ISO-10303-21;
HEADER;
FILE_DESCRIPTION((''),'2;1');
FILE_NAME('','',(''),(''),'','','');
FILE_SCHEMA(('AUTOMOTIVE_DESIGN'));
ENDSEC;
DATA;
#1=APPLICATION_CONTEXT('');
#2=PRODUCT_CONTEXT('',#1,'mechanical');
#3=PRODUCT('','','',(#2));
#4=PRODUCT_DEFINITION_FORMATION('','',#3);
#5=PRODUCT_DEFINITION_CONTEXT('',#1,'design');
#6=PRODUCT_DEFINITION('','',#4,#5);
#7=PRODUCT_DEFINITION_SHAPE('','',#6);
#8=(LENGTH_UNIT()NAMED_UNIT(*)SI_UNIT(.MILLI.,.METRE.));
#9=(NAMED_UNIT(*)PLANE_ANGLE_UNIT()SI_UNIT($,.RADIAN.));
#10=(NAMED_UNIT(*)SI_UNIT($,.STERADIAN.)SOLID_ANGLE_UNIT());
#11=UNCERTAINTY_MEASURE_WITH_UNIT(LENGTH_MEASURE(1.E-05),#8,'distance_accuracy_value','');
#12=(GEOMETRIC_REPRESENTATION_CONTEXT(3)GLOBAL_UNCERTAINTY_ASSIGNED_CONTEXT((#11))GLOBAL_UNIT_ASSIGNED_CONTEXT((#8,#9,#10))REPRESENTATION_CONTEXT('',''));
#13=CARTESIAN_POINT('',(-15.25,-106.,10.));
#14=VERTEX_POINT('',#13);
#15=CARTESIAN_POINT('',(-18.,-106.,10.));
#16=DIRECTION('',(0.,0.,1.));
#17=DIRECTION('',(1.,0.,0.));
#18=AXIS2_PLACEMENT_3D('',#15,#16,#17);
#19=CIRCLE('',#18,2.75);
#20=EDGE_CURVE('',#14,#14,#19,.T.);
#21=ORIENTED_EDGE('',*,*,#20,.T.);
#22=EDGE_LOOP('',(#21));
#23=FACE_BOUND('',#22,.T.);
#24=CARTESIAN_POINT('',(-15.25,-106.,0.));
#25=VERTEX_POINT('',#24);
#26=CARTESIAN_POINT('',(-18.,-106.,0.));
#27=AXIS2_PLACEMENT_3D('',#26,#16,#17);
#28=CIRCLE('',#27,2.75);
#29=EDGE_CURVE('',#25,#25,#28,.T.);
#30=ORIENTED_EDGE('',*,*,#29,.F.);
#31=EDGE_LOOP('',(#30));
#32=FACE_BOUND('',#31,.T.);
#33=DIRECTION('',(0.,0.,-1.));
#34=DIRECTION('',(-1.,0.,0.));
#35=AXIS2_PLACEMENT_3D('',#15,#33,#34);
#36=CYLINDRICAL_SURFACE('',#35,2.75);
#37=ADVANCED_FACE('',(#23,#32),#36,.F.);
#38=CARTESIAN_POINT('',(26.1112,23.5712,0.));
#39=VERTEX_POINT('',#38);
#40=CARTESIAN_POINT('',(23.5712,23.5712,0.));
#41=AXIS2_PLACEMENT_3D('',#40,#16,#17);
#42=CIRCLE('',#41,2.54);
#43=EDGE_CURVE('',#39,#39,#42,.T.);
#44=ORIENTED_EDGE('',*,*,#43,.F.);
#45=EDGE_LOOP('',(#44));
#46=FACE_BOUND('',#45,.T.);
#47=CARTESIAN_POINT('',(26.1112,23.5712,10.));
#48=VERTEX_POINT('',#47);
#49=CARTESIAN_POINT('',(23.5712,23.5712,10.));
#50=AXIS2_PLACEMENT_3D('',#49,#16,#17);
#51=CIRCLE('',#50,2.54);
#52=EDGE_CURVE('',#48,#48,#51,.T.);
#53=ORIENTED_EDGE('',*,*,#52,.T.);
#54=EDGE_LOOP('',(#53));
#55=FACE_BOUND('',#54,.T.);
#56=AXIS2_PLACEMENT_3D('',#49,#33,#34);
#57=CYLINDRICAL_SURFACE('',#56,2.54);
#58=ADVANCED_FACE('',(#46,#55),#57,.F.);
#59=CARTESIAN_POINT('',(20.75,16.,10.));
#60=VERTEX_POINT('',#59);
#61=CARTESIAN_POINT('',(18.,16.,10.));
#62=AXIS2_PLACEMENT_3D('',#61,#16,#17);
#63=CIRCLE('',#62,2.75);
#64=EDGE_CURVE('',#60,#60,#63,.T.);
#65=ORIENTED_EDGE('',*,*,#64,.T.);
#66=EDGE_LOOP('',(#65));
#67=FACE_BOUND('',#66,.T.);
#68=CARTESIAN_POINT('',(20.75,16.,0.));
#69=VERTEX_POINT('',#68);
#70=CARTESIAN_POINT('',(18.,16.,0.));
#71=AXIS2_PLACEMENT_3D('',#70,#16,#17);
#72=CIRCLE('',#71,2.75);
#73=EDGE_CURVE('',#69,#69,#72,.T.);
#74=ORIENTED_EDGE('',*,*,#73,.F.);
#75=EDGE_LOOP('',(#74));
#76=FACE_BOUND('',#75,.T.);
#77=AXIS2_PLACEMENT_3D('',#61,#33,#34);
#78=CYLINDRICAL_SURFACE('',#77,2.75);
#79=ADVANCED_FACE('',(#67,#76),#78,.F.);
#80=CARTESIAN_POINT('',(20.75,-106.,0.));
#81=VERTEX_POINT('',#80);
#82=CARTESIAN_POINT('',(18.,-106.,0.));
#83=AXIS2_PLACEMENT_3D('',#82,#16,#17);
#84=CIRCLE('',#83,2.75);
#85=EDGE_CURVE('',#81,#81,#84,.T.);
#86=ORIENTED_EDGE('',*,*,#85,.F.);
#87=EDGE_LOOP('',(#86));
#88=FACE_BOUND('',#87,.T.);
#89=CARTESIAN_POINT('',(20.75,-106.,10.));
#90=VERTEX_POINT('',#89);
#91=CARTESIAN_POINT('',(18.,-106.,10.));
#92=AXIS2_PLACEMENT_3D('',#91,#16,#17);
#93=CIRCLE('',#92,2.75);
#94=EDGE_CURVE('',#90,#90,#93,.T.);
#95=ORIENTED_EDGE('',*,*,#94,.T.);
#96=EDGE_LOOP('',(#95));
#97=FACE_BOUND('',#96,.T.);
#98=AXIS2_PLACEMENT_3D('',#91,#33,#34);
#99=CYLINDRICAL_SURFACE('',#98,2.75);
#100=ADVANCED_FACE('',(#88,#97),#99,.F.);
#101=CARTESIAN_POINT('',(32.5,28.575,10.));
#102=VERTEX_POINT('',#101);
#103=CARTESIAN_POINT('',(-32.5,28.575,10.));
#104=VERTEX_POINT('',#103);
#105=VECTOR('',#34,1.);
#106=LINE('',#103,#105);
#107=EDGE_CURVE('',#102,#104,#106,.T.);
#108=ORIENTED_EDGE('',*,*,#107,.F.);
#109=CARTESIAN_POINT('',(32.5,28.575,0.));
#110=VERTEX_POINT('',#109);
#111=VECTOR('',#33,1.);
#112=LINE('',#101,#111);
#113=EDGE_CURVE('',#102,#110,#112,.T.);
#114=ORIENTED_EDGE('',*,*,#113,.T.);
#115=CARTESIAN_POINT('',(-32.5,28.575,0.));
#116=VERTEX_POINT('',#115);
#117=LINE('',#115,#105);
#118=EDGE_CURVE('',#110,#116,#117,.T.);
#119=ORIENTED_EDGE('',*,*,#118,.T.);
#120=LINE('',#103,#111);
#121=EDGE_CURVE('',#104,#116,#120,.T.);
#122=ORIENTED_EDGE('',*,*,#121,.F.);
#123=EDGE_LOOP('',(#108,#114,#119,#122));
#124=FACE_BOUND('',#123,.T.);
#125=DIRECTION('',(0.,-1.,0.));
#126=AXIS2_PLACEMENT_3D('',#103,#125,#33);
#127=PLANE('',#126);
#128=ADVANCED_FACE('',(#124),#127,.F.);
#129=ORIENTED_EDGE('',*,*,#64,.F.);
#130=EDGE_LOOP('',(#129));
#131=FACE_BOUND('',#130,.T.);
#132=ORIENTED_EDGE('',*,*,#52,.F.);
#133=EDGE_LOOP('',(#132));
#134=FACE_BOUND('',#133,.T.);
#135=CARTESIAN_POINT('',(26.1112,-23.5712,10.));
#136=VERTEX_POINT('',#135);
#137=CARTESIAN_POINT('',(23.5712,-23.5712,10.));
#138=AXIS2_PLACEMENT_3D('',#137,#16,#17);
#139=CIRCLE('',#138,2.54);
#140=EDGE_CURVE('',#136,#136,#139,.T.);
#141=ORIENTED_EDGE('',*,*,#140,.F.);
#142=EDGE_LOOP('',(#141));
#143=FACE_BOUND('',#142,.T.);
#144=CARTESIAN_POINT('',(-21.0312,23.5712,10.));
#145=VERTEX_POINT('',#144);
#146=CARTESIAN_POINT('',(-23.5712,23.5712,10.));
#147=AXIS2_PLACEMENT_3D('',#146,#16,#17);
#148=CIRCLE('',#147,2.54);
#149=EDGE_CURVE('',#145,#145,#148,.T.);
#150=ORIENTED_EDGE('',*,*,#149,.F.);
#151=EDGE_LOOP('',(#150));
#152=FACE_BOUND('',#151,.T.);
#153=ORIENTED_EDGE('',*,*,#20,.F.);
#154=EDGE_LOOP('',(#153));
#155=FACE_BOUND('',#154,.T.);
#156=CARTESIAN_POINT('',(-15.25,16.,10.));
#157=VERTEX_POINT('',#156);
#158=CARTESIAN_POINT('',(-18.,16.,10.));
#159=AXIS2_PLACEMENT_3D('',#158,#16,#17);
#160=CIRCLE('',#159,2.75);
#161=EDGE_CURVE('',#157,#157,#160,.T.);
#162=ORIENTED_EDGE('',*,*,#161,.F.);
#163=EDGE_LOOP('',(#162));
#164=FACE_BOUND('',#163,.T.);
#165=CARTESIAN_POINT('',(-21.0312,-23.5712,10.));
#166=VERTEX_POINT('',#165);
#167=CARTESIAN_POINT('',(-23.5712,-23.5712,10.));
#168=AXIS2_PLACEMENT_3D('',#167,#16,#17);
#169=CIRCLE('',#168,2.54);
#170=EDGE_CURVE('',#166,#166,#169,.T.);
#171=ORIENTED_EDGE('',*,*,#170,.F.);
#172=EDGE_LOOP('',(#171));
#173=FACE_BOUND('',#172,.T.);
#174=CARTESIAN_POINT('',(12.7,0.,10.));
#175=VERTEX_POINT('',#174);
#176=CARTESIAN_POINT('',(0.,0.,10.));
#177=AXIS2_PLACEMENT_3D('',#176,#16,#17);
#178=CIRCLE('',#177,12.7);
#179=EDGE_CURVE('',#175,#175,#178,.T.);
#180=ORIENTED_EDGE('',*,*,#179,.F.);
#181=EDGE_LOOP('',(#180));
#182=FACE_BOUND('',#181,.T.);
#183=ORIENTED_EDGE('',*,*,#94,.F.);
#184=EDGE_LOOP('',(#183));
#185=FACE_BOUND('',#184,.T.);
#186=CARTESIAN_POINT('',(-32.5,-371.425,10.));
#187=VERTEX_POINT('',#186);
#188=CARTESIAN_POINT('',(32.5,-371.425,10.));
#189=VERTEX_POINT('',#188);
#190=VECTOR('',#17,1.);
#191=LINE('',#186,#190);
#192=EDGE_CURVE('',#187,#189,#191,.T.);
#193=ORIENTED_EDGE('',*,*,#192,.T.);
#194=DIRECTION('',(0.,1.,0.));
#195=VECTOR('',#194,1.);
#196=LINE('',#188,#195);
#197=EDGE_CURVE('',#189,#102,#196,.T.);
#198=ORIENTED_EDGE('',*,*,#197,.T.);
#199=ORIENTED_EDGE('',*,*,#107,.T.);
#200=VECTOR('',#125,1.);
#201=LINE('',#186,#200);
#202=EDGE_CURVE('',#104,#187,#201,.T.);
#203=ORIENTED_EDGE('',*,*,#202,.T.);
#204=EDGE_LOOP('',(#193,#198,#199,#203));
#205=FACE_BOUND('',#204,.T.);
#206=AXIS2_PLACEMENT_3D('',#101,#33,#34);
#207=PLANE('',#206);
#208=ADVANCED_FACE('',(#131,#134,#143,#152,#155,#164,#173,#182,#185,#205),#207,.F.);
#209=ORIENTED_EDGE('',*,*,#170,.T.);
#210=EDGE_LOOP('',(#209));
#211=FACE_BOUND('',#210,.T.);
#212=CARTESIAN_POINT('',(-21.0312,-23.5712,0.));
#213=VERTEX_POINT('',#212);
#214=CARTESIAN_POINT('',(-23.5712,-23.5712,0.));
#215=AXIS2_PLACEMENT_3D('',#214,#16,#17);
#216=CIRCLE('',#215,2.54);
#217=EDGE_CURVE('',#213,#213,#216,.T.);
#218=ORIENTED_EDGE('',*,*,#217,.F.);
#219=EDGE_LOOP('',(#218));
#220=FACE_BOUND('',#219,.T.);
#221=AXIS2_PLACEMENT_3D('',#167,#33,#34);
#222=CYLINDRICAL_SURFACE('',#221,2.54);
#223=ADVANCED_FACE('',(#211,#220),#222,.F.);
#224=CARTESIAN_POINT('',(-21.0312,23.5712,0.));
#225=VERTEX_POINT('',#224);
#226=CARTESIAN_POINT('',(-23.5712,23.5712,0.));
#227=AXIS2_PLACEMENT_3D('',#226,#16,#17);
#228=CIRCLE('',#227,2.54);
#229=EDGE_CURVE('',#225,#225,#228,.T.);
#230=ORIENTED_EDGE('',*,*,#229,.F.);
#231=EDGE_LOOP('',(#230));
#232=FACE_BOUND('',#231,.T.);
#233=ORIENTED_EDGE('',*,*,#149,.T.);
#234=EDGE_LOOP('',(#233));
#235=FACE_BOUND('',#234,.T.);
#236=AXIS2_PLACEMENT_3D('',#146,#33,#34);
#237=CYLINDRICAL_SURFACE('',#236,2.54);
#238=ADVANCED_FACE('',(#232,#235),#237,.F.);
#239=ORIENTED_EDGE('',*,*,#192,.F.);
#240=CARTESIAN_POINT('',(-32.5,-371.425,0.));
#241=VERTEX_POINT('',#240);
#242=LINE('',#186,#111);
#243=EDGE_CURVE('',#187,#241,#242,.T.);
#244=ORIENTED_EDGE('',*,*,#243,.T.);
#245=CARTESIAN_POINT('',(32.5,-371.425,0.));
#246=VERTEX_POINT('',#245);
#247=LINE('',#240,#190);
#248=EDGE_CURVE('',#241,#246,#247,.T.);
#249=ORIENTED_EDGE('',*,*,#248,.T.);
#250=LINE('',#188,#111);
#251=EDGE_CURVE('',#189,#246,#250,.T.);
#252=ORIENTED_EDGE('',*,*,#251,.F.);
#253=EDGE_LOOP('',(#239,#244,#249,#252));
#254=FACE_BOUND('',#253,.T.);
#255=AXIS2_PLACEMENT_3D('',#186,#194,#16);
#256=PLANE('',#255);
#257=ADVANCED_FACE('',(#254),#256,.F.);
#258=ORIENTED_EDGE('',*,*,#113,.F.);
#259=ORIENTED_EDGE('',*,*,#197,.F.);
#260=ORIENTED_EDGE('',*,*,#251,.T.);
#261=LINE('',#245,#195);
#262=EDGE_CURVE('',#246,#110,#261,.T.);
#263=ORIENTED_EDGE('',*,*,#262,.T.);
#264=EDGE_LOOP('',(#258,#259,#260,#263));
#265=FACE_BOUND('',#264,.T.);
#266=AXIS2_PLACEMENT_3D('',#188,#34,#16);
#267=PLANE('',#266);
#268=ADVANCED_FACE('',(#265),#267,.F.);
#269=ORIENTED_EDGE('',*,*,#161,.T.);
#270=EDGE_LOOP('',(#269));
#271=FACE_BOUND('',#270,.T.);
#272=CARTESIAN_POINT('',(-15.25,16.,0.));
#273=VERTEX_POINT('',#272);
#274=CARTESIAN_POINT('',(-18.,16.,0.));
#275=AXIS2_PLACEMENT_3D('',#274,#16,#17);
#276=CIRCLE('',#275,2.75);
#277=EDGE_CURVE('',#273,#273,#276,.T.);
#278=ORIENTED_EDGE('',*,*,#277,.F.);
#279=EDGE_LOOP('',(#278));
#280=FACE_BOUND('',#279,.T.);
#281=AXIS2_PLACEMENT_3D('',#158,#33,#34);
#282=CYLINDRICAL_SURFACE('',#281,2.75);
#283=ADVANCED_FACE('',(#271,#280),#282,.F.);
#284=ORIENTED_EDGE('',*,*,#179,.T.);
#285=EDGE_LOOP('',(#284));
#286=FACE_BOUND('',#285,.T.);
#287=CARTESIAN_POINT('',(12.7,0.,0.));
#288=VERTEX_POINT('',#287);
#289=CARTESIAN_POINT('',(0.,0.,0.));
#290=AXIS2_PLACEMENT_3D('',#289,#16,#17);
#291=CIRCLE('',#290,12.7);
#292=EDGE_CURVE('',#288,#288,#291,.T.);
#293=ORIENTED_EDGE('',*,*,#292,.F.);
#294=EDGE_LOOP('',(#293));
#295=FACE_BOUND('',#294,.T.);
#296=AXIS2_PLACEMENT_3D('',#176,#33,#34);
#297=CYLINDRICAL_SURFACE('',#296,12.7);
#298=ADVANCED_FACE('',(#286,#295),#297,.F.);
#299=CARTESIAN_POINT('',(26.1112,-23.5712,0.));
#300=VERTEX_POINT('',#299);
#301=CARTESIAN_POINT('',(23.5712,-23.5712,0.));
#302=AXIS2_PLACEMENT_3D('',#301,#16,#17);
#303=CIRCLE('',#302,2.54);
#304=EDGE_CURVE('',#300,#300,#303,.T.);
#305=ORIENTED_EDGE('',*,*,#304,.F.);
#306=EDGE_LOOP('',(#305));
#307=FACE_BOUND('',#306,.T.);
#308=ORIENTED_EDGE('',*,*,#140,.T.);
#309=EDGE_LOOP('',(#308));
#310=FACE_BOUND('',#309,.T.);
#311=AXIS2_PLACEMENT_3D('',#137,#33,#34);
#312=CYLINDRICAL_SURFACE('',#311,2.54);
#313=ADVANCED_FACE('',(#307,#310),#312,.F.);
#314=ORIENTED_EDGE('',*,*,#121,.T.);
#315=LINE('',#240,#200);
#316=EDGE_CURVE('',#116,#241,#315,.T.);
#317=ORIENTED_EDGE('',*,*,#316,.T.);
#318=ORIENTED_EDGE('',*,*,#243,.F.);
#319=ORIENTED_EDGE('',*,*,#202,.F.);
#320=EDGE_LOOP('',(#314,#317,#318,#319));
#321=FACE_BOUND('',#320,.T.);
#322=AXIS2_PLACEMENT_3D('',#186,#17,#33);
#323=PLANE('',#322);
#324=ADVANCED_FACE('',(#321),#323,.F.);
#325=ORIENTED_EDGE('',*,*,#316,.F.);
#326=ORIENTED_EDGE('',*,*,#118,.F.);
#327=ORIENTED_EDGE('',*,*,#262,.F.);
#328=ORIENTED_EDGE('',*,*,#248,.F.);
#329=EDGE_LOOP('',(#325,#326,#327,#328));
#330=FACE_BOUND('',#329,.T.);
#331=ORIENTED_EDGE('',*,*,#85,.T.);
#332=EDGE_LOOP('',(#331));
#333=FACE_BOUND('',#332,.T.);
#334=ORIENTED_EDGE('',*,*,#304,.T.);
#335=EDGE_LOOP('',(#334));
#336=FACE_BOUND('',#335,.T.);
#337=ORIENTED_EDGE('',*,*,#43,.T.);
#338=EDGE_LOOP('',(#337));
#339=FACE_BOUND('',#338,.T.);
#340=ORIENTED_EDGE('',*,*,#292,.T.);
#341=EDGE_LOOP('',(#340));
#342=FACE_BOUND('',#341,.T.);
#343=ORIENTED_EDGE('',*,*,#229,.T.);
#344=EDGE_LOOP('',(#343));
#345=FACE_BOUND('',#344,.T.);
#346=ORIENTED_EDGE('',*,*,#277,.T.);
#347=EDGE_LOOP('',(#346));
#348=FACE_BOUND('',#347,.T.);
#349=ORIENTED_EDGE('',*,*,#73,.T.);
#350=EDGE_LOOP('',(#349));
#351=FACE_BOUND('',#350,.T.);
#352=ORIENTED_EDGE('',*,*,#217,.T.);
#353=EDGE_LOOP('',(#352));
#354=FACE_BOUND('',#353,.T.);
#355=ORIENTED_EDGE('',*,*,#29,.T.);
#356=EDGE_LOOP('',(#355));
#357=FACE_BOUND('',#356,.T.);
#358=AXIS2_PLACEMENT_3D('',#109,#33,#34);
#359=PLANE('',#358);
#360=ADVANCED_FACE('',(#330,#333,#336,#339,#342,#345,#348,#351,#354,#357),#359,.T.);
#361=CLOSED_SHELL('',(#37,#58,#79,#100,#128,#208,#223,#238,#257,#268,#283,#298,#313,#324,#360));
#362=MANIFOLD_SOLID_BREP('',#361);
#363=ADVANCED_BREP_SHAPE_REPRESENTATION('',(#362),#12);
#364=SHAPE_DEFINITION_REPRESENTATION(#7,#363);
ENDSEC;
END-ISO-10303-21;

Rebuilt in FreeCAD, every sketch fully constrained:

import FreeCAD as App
import Part
import Sketcher
from FreeCAD import Vector


def add_polygon(sketch, points):
    """Adds a closed chain of lines whose ends are joined by coincident constraints."""
    first, n = sketch.GeometryCount, len(points)
    for a, b in zip(points, points[1:] + points[:1]):
        sketch.addGeometry(Part.LineSegment(App.Vector(*a, 0), App.Vector(*b, 0)), False)
    for i in range(n):
        sketch.addConstraint(Sketcher.Constraint("Coincident", first + i, 2, first + (i + 1) % n, 1))

doc = App.newDocument("Part")
params = doc.addObject("Spreadsheet::Sheet", "Params")
for row, (alias, value) in enumerate([
    ("sketch1_diameter", "5.5 mm"),
    ("sketch1_diameter2", "25.4 mm"),
    ("sketch1_diameter3", "5.08 mm"),
    ("sketch1_width", "65 mm"),
    ("sketch1_height", "400 mm"),
    ("pad1_length", "10 mm"),
], start=1):
    params.set(f"A{row}", alias)
    params.set(f"B{row}", "=" + value)
    params.setAlias(f"B{row}", alias)

body = doc.addObject("PartDesign::Body", "Body")

# Sketch on XY plane
sketch1 = body.newObject("Sketcher::SketchObject", "Sketch")
sketch1.AttachmentSupport = (doc.getObject("XY_Plane"), [""])
sketch1.MapMode = "FlatFace"
add_polygon(sketch1, [(-32.5, 28.575), (-32.5, -371.425), (32.5, -371.425), (32.5, 28.575)])  # lines 0-3
sketch1.addGeometry(Part.Circle(Vector(-18, -106, 0), Vector(0, 0, 1), 2.75), False)  # 4
sketch1.addGeometry(Part.Circle(Vector(18, -106, 0), Vector(0, 0, 1), 2.75), False)  # 5
sketch1.addGeometry(Part.Circle(Vector(-23.5712, -23.5712, 0), Vector(0, 0, 1), 2.54), False)  # 6
sketch1.addGeometry(Part.Circle(Vector(-23.5712, 23.5712, 0), Vector(0, 0, 1), 2.54), False)  # 7
sketch1.addGeometry(Part.Circle(Vector(-18, 16, 0), Vector(0, 0, 1), 2.75), False)  # 8
sketch1.addGeometry(Part.Circle(Vector(0, 0, 0), Vector(0, 0, 1), 12.7), False)  # 9
sketch1.addGeometry(Part.Circle(Vector(23.5712, -23.5712, 0), Vector(0, 0, 1), 2.54), False)  # 10
sketch1.addGeometry(Part.Circle(Vector(18, 16, 0), Vector(0, 0, 1), 2.75), False)  # 11
sketch1.addGeometry(Part.Circle(Vector(23.5712, 23.5712, 0), Vector(0, 0, 1), 2.54), False)  # 12
sketch1.addConstraint(Sketcher.Constraint("Vertical", 0))
sketch1.addConstraint(Sketcher.Constraint("Horizontal", 1))
sketch1.addConstraint(Sketcher.Constraint("Vertical", 2))
sketch1.addConstraint(Sketcher.Constraint("Horizontal", 3))
sketch1.addConstraint(Sketcher.Constraint("Coincident", 9, 3, -1, 1))
sketch1.addConstraint(Sketcher.Constraint("Equal", 4, 5))
sketch1.addConstraint(Sketcher.Constraint("Equal", 6, 7))
sketch1.addConstraint(Sketcher.Constraint("Equal", 5, 8))
sketch1.addConstraint(Sketcher.Constraint("Equal", 7, 10))
sketch1.addConstraint(Sketcher.Constraint("Equal", 8, 11))
sketch1.addConstraint(Sketcher.Constraint("Equal", 10, 12))
sketch1.addConstraint(Sketcher.Constraint("Symmetric", 7, 3, 10, 3, -1, 1))
sketch1.addConstraint(Sketcher.Constraint("Symmetric", 6, 3, 12, 3, -1, 1))
sketch1.addConstraint(Sketcher.Constraint("Symmetric", 4, 3, 5, 3, -2))
sketch1.addConstraint(Sketcher.Constraint("Symmetric", 6, 3, 10, 3, -2))
sketch1.addConstraint(Sketcher.Constraint("Symmetric", 8, 3, 11, 3, -2))
sketch1.addConstraint(Sketcher.Constraint("Vertical", 4, 3, 8, 3))
sketch1.addConstraint(Sketcher.Constraint("Diameter", 4, 5.5))
sketch1.addConstraint(Sketcher.Constraint("Diameter", 9, 25.4))
sketch1.addConstraint(Sketcher.Constraint("Diameter", 6, 5.08))
sketch1.addConstraint(Sketcher.Constraint("DistanceX", 1, 1, 1, 2, 65.0))
sketch1.addConstraint(Sketcher.Constraint("DistanceY", 0, 2, 0, 1, 400.0))
sketch1.addConstraint(Sketcher.Constraint("DistanceX", 4, 3, -1, 1, 18.0))
sketch1.addConstraint(Sketcher.Constraint("DistanceY", 4, 3, -1, 1, 106.0))
sketch1.addConstraint(Sketcher.Constraint("DistanceY", -1, 1, 8, 3, 16.0))
sketch1.addConstraint(Sketcher.Constraint("DistanceX", 0, 2, -1, 1, 32.5))
sketch1.addConstraint(Sketcher.Constraint("DistanceY", 0, 2, -1, 1, 371.425))
sketch1.addConstraint(Sketcher.Constraint("DistanceX", 6, 3, -1, 1, 23.5712))
sketch1.addConstraint(Sketcher.Constraint("DistanceY", 6, 3, -1, 1, 23.5712))
sketch1.setExpression("Constraints[21]", "Params.sketch1_diameter")
sketch1.setExpression("Constraints[22]", "Params.sketch1_diameter2")
sketch1.setExpression("Constraints[23]", "Params.sketch1_diameter3")
sketch1.setExpression("Constraints[24]", "Params.sketch1_width")
sketch1.setExpression("Constraints[25]", "Params.sketch1_height")
pad1 = body.newObject("PartDesign::Pad", "Pad")
pad1.Profile = sketch1
pad1.setExpression("Length", "Params.pad1_length")

doc.recompute()
